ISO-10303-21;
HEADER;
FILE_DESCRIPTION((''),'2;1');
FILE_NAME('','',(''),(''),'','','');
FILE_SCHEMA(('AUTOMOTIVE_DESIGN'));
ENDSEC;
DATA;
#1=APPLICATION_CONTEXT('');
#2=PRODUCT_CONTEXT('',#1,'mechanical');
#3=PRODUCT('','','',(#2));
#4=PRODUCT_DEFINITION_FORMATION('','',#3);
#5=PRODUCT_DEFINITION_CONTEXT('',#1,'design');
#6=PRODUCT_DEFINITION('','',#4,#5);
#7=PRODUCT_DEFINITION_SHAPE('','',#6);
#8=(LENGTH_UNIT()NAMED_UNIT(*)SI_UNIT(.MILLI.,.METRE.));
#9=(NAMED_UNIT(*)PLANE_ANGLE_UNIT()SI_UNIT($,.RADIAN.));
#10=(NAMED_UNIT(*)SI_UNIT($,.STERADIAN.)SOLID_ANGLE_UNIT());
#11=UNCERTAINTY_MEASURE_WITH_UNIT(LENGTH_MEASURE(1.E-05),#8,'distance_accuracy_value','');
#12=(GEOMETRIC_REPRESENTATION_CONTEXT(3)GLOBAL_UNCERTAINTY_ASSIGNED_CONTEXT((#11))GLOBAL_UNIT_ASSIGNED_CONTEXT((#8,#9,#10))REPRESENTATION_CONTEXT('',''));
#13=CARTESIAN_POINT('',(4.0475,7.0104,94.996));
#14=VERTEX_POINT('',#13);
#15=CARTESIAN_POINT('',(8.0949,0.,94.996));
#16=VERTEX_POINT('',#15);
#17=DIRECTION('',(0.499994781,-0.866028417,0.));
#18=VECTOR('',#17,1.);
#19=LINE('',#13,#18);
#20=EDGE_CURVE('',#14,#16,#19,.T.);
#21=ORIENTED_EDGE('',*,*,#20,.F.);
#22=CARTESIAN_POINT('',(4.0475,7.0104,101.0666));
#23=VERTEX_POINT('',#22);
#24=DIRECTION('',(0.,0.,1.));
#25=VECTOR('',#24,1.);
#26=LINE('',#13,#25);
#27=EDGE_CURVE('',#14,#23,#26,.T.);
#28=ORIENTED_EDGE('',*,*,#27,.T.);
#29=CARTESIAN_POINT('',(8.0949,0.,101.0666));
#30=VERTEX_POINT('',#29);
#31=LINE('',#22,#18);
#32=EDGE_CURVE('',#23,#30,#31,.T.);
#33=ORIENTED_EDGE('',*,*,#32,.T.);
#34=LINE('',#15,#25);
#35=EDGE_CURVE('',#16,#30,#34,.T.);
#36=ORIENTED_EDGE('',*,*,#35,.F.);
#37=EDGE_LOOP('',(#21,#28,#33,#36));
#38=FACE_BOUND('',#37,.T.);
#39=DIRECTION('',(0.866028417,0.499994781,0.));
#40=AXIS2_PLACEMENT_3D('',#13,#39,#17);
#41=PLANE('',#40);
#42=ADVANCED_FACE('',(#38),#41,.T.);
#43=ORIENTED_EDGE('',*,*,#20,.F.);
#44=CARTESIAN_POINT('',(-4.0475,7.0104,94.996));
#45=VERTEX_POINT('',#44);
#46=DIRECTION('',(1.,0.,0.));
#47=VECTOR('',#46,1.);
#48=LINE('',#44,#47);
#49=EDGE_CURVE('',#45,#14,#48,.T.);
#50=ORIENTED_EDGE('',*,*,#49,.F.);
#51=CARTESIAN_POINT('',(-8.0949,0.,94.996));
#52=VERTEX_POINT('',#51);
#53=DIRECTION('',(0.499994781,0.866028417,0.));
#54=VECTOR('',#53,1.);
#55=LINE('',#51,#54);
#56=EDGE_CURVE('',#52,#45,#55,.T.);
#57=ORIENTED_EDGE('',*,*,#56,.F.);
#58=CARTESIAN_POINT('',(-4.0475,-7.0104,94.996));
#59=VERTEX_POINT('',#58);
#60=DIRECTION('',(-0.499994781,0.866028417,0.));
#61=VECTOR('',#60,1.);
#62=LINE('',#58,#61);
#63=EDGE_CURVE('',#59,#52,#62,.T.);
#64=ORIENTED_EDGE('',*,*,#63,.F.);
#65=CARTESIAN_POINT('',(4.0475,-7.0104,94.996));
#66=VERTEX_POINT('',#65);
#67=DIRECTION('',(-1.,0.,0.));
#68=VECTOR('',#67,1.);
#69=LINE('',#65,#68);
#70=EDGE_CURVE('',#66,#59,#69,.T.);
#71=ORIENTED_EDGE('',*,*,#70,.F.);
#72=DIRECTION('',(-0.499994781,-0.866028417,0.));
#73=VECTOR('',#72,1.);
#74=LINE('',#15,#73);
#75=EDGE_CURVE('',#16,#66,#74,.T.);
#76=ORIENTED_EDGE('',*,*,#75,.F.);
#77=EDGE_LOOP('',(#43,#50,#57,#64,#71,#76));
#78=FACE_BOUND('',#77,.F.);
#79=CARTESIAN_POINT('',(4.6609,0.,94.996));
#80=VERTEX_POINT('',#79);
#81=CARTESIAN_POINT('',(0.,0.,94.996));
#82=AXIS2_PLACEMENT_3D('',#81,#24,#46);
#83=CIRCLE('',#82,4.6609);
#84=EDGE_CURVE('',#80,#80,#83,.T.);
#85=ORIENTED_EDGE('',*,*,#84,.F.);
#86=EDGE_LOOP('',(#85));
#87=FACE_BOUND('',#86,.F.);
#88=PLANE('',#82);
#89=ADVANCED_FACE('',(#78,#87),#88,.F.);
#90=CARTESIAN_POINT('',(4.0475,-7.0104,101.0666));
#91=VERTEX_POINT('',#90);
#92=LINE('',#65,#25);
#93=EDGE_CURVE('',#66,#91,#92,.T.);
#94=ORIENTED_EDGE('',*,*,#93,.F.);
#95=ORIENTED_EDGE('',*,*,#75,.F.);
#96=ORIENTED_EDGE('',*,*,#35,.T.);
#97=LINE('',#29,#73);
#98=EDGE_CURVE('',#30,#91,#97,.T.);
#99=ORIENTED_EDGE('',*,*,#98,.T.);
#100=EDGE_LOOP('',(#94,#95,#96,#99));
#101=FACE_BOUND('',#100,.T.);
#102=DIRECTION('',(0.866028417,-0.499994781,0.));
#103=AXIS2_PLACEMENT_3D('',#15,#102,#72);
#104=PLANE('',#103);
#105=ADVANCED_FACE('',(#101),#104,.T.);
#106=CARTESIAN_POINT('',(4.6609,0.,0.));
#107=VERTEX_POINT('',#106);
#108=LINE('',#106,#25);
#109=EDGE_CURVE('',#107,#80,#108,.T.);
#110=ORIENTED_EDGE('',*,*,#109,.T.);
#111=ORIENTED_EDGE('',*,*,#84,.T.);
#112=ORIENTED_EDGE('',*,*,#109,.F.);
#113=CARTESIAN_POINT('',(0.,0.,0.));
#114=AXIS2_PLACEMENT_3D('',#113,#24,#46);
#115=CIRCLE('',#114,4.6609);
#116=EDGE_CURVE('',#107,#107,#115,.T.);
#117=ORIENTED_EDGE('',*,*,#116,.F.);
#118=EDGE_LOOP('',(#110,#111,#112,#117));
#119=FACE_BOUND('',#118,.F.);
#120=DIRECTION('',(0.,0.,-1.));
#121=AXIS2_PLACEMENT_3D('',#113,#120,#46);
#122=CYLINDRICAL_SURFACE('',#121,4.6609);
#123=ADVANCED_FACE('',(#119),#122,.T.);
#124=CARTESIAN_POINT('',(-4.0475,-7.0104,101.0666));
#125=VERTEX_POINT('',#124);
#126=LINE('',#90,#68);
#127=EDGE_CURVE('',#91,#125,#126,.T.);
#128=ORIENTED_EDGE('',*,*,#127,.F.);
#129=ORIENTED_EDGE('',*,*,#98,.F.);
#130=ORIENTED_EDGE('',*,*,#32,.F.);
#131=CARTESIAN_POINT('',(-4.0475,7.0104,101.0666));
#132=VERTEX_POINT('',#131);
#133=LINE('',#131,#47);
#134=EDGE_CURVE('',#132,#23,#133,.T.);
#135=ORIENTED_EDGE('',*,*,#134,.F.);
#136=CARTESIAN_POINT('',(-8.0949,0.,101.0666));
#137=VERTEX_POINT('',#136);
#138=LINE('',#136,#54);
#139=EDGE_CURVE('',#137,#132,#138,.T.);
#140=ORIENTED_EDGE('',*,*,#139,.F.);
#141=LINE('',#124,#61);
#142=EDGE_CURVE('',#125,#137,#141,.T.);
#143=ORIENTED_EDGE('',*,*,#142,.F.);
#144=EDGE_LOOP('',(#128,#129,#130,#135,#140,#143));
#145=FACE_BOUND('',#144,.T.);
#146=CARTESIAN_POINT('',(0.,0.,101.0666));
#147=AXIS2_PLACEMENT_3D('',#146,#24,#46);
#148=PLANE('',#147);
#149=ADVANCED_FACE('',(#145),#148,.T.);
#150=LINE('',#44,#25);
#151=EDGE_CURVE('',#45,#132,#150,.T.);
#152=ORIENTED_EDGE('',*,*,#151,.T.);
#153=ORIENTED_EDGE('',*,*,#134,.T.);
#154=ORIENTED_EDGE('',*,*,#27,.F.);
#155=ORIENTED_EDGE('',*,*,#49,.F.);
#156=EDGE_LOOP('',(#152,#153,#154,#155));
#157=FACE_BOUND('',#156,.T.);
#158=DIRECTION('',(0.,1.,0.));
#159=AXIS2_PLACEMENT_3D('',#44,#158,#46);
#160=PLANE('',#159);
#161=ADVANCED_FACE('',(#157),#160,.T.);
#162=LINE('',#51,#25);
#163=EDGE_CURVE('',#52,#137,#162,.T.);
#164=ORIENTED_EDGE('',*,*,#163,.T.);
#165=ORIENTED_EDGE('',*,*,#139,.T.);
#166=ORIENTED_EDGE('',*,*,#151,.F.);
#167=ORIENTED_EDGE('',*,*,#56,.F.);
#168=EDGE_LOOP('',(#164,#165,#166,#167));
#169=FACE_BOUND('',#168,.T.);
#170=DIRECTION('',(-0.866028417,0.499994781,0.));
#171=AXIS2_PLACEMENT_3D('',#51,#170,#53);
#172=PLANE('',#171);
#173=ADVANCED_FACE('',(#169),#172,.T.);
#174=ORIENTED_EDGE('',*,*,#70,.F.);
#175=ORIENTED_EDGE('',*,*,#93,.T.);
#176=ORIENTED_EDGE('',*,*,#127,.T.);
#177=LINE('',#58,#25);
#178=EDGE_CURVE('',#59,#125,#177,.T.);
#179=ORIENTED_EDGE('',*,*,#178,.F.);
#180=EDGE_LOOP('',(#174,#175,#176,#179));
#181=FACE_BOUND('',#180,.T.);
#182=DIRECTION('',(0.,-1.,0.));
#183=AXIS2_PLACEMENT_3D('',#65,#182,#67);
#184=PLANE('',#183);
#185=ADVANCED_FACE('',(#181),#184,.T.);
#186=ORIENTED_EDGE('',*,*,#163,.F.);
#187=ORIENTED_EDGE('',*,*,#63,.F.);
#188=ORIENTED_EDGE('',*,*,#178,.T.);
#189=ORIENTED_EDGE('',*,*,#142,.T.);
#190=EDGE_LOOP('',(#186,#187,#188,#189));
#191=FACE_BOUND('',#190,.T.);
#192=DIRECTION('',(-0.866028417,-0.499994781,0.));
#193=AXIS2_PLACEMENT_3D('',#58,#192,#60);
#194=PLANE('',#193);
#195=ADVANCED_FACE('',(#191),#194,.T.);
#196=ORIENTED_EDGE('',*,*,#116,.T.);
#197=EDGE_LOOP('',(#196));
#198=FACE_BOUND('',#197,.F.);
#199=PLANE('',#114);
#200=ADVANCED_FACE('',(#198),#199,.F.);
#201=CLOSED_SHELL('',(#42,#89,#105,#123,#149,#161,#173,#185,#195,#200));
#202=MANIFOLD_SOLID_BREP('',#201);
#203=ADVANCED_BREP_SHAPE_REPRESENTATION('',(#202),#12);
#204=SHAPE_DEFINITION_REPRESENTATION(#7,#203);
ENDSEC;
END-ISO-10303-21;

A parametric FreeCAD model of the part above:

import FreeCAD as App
import Part
import Sketcher

V = App.Vector
Q = App.Units.Quantity

doc = App.newDocument("Part")
body = doc.addObject("PartDesign::Body", "Body")

# Sketch on XY plane
sketch1 = doc.addObject("Sketcher::SketchObject", "Sketch")
body.addObject(sketch1)
sketch1.AttachmentSupport = (doc.XY_Plane, [""])
sketch1.MapMode = "FlatFace"
sketch1.addGeometry(Part.Circle(V(0, 0, 0), V(0, 0, 1), 4.7), False)
sketch1.addConstraint([
    Sketcher.Constraint("Coincident", 0, 3, -1, 1),
    Sketcher.Constraint("Diameter", 0, Q("0.367 in")),
])
pad1 = doc.addObject("PartDesign::Pad", "Pad")
body.addObject(pad1)
pad1.Profile = sketch1
pad1.Length = Q("3.74 in")

# Sketch on XY plane
sketch2 = doc.addObject("Sketcher::SketchObject", "Sketch001")
body.addObject(sketch2)
sketch2.AttachmentSupport = (doc.XY_Plane, [""])
sketch2.MapMode = "FlatFace"
sketch2.AttachmentOffset = App.Placement(V(0, 0, 3.74 * 25.4), App.Rotation())
sketch2.addGeometry([
    Part.LineSegment(V(4, -7, 0), V(8, 0, 0)),  # 0
    Part.LineSegment(V(8, 0, 0), V(4, 7, 0)),  # 1
    Part.LineSegment(V(4, 7, 0), V(-4, 7, 0)),  # 2
    Part.LineSegment(V(-4, 7, 0), V(-8, 0, 0)),  # 3
    Part.LineSegment(V(-8, 0, 0), V(-4, -7, 0)),  # 4
    Part.LineSegment(V(-4, -7, 0), V(4, -7, 0)),  # 5
], False)
sketch2.addConstraint([
    Sketcher.Constraint("Coincident", 0, 2, 1, 1),
    Sketcher.Constraint("Coincident", 1, 2, 2, 1),
    Sketcher.Constraint("Coincident", 2, 2, 3, 1),
    Sketcher.Constraint("Coincident", 3, 2, 4, 1),
    Sketcher.Constraint("Coincident", 4, 2, 5, 1),
    Sketcher.Constraint("Coincident", 5, 2, 0, 1),
    Sketcher.Constraint("Horizontal", 2),
    Sketcher.Constraint("Horizontal", 5),
    Sketcher.Constraint("Symmetric", 0, 2, 3, 2, -1, 1),
    Sketcher.Constraint("Symmetric", 1, 2, 4, 2, -1, 1),
    Sketcher.Constraint("PointOnObject", 0, 2, -1),
    Sketcher.Constraint("Parallel", 0, 3),
    Sketcher.Constraint("Vertical", 2, 2, 4, 2),
    Sketcher.Constraint("Angle", 0, Q("60.0003 deg")),
    Sketcher.Constraint("DistanceY", 4, 2, 2, 2, Q("0.552 in")),
    Sketcher.Constraint("DistanceX", 2, 2, 2, 1, Q("0.3187 in")),
])
pad2 = doc.addObject("PartDesign::Pad", "Pad001")
body.addObject(pad2)
pad2.Profile = sketch2
pad2.Length = Q("0.239 in")

doc.recompute()
